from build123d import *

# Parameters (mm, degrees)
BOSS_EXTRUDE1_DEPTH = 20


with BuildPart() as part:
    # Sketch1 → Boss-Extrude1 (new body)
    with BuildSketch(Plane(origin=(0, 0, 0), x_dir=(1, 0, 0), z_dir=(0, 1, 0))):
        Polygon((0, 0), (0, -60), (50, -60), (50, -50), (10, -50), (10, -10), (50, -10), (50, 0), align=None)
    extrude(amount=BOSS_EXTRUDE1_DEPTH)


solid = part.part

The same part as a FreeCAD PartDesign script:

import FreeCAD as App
import Part
import Sketcher

V = App.Vector
Q = App.Units.Quantity


def add_polygon(sketch, points):
    """Adds a closed chain of lines whose ends are joined by coincident constraints."""
    first, n = sketch.GeometryCount, len(points)
    for a, b in zip(points, points[1:] + points[:1]):
        sketch.addGeometry(Part.LineSegment(App.Vector(*a, 0), App.Vector(*b, 0)), False)
    for i in range(n):
        sketch.addConstraint(Sketcher.Constraint("Coincident", first + i, 2, first + (i + 1) % n, 1))

doc = App.newDocument("Part")
params = doc.addObject("Spreadsheet::Sheet", "Params")
for row, (alias, value) in enumerate([
    ("sketch1_width", "50 mm"),
    ("sketch1_width2", "40 mm"),
    ("sketch1_height", "60 mm"),
    ("pad1_length", "20 mm"),
], start=1):
    params.set(f"A{row}", alias)
    params.set(f"B{row}", "=" + value)
    params.setAlias(f"B{row}", alias)

body = doc.addObject("PartDesign::Body", "Body")

sketch1 = body.newObject("Sketcher::SketchObject", "Sketch")
sketch1.AttachmentSupport = (doc.getObject("XZ_Plane"), [""])
sketch1.MapMode = "FlatFace"
add_polygon(sketch1, [(0, 0), (0, 60), (50, 60), (50, 50), (10, 50), (10, 10), (50, 10), (50, 0)])
sketch1.addConstraint([
    Sketcher.Constraint("Vertical", 0),
    Sketcher.Constraint("Horizontal", 1),
    Sketcher.Constraint("Vertical", 2),
    Sketcher.Constraint("Horizontal", 3),
    Sketcher.Constraint("Vertical", 4),
    Sketcher.Constraint("Horizontal", 5),
    Sketcher.Constraint("Vertical", 6),
    Sketcher.Constraint("Horizontal", 7),
    Sketcher.Constraint("Coincident", 7, 2, -1, 1),
    Sketcher.Constraint("Vertical", 2, 2, 5, 2),
    Sketcher.Constraint("Equal", 5, 4),
    Sketcher.Constraint("Equal", 2, 6),
    Sketcher.Constraint("DistanceX", 1, 1, 1, 2, Q("50 mm")),
    Sketcher.Constraint("DistanceX", 3, 2, 3, 1, Q("40 mm")),
    Sketcher.Constraint("DistanceY", 0, 1, 0, 2, Q("60 mm")),
])
sketch1.setExpression("Constraints[20]", "Params.sketch1_width")
sketch1.setExpression("Constraints[21]", "Params.sketch1_width2")
sketch1.setExpression("Constraints[22]", "Params.sketch1_height")
pad1 = body.newObject("PartDesign::Pad", "Pad")
pad1.Profile = sketch1
pad1.setExpression("Length", "Params.pad1_length")
pad1.Reversed = True

doc.recompute()
